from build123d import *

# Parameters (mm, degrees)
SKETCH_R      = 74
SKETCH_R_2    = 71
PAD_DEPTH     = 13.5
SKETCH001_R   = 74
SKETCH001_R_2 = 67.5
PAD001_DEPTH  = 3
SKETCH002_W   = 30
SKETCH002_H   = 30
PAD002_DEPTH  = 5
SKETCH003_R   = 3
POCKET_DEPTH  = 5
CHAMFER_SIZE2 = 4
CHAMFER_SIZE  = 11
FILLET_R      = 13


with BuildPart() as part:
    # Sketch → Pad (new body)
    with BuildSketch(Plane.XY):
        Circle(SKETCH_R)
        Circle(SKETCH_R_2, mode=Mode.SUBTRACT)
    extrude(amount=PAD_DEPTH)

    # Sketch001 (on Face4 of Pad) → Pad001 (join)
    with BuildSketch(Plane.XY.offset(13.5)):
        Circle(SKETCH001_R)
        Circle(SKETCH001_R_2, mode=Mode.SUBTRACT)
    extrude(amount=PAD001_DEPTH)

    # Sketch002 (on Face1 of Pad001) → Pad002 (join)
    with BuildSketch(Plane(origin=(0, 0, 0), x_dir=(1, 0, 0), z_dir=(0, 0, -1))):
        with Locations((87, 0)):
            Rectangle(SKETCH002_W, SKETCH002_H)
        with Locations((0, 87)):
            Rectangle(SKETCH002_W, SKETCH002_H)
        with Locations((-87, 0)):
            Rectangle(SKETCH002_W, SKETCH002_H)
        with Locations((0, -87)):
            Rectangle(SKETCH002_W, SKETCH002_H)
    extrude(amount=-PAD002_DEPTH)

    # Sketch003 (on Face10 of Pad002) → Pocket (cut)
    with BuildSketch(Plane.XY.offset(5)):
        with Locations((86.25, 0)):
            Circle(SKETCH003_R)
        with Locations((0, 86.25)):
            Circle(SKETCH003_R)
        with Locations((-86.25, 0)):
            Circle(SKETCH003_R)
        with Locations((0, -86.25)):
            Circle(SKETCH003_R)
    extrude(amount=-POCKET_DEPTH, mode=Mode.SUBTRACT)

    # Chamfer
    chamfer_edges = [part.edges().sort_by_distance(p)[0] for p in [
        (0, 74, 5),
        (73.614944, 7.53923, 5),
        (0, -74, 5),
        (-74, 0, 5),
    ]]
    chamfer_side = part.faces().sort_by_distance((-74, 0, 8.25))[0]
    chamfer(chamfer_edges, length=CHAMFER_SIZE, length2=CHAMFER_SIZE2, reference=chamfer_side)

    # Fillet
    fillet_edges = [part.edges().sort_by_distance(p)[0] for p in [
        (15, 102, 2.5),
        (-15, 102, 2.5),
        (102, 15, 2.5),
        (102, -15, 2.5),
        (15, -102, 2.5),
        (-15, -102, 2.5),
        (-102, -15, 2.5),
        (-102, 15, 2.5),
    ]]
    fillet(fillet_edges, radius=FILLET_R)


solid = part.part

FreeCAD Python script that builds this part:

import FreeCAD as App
import Part
import Sketcher

V = App.Vector


def edges_at(feature, points):
    """Names of the edges that pass closest to the given points."""
    edges = feature.Shape.Edges
    near = lambda p: min(range(len(edges)), key=lambda i: edges[i].distToShape(Part.Vertex(*p))[0])
    return sorted({f"Edge{near(p) + 1}" for p in points})


def add_polygon(sketch, points):
    """Adds a closed chain of lines whose ends are joined by coincident constraints."""
    first, n = sketch.GeometryCount, len(points)
    for a, b in zip(points, points[1:] + points[:1]):
        sketch.addGeometry(Part.LineSegment(App.Vector(*a, 0), App.Vector(*b, 0)), False)
    for i in range(n):
        sketch.addConstraint(Sketcher.Constraint("Coincident", first + i, 2, first + (i + 1) % n, 1))

doc = App.newDocument("Part")
body = doc.addObject("PartDesign::Body", "Body")

sketch1 = doc.addObject("Sketcher::SketchObject", "Sketch")
body.addObject(sketch1)
sketch1.AttachmentSupport = (doc.XY_Plane, [""])
sketch1.MapMode = "FlatFace"
sketch1.addGeometry(Part.Circle(V(0, 0, 0), V(0, 0, 1), 74), False)
sketch1.addGeometry(Part.Circle(V(0, 0, 0), V(0, 0, 1), 71), False)
sketch1.addConstraint(Sketcher.Constraint("Coincident", 0, 3, -1, 1))
sketch1.addConstraint(Sketcher.Constraint("Coincident", 1, 3, -1, 1))
sketch1.addConstraint(Sketcher.Constraint("Diameter", 0, 148.0))
sketch1.addConstraint(Sketcher.Constraint("Diameter", 1, 142.0))
pad1 = doc.addObject("PartDesign::Pad", "Pad")
body.addObject(pad1)
pad1.Profile = sketch1
pad1.Length = 13.5

sketch2 = doc.addObject("Sketcher::SketchObject", "Sketch001")
body.addObject(sketch2)
sketch2.AttachmentSupport = (doc.XY_Plane, [""])
sketch2.MapMode = "FlatFace"
sketch2.AttachmentOffset = App.Placement(V(0, 0, 13.5), App.Rotation())
sketch2.addGeometry(Part.Circle(V(0, 0, 0), V(0, 0, 1), 74), False)
sketch2.addGeometry(Part.Circle(V(0, 0, 0), V(0, 0, 1), 68), False)
sketch2.addConstraint(Sketcher.Constraint("Coincident", 0, 3, -1, 1))
sketch2.addConstraint(Sketcher.Constraint("Coincident", 1, 3, -1, 1))
sketch2.addConstraint(Sketcher.Constraint("Diameter", 0, 148.0))
sketch2.addConstraint(Sketcher.Constraint("Diameter", 1, 135.0))
pad2 = doc.addObject("PartDesign::Pad", "Pad001")
body.addObject(pad2)
pad2.Profile = sketch2
pad2.Length = 3

sketch3 = doc.addObject("Sketcher::SketchObject", "Sketch002")
body.addObject(sketch3)
sketch3.AttachmentSupport = (doc.XY_Plane, [""])
sketch3.MapMode = "FlatFace"
add_polygon(sketch3, [(72, -15), (72, 15), (102, 15), (102, -15)])
add_polygon(sketch3, [(-15, -102), (-15, -72), (15, -72), (15, -102)])
add_polygon(sketch3, [(-102, -15), (-102, 15), (-72, 15), (-72, -15)])
add_polygon(sketch3, [(-15, 72), (-15, 102), (15, 102), (15, 72)])
sketch3.addConstraint(Sketcher.Constraint("Vertical", 0))
sketch3.addConstraint(Sketcher.Constraint("Horizontal", 1))
sketch3.addConstraint(Sketcher.Constraint("Vertical", 2))
sketch3.addConstraint(Sketcher.Constraint("Horizontal", 3))
sketch3.addConstraint(Sketcher.Constraint("Vertical", 4))
sketch3.addConstraint(Sketcher.Constraint("Horizontal", 5))
sketch3.addConstraint(Sketcher.Constraint("Vertical", 6))
sketch3.addConstraint(Sketcher.Constraint("Horizontal", 7))
sketch3.addConstraint(Sketcher.Constraint("Vertical", 8))
sketch3.addConstraint(Sketcher.Constraint("Horizontal", 9))
sketch3.addConstraint(Sketcher.Constraint("Vertical", 10))
sketch3.addConstraint(Sketcher.Constraint("Horizontal", 11))
sketch3.addConstraint(Sketcher.Constraint("Vertical", 12))
sketch3.addConstraint(Sketcher.Constraint("Horizontal", 13))
sketch3.addConstraint(Sketcher.Constraint("Vertical", 14))
sketch3.addConstraint(Sketcher.Constraint("Horizontal", 15))
sketch3.addConstraint(Sketcher.Constraint("Symmetric", 2, 2, 8, 2, -1, 1))
sketch3.addConstraint(Sketcher.Constraint("Symmetric", 0, 2, 10, 2, -1, 1))
sketch3.addConstraint(Sketcher.Constraint("Symmetric", 6, 2, 12, 2, -1, 1))
sketch3.addConstraint(Sketcher.Constraint("Symmetric", 4, 2, 14, 2, -1, 1))
sketch3.addConstraint(Sketcher.Constraint("Horizontal", 1, 2, 8, 2))
sketch3.addConstraint(Sketcher.Constraint("Vertical", 7, 2, 12, 2))
sketch3.addConstraint(Sketcher.Constraint("Equal", 3, 5))
sketch3.addConstraint(Sketcher.Constraint("Equal", 15, 0))
sketch3.addConstraint(Sketcher.Constraint("Equal", 2, 4))
sketch3.addConstraint(Sketcher.Constraint("DistanceX", 1, 1, 1, 2, 30.0))
sketch3.addConstraint(Sketcher.Constraint("DistanceX", -1, 1, 0, 2, 72.0))
sketch3.addConstraint(Sketcher.Constraint("DistanceY", 4, 2, -1, 1, 72.0))
pad3 = doc.addObject("PartDesign::Pad", "Pad002")
body.addObject(pad3)
pad3.Profile = sketch3
pad3.Length = 5

sketch4 = doc.addObject("Sketcher::SketchObject", "Sketch003")
body.addObject(sketch4)
sketch4.AttachmentSupport = (doc.XY_Plane, [""])
sketch4.MapMode = "FlatFace"
sketch4.AttachmentOffset = App.Placement(V(0, 0, 5), App.Rotation())
sketch4.addGeometry(Part.Circle(V(86.2, 0, 0), V(0, 0, 1), 3), False)
sketch4.addGeometry(Part.Circle(V(0, 86.2, 0), V(0, 0, 1), 3), False)
sketch4.addGeometry(Part.Circle(V(-86.2, 0, 0), V(0, 0, 1), 3), False)
sketch4.addGeometry(Part.Circle(V(0, -86.2, 0), V(0, 0, 1), 3), False)
sketch4.addConstraint(Sketcher.Constraint("Equal", 0, 1))
sketch4.addConstraint(Sketcher.Constraint("Equal", 1, 2))
sketch4.addConstraint(Sketcher.Constraint("Equal", 2, 3))
sketch4.addConstraint(Sketcher.Constraint("Symmetric", 0, 3, 2, 3, -1, 1))
sketch4.addConstraint(Sketcher.Constraint("Symmetric", 1, 3, 3, 3, -1, 1))
sketch4.addConstraint(Sketcher.Constraint("PointOnObject", 0, 3, -1))
sketch4.addConstraint(Sketcher.Constraint("PointOnObject", 1, 3, -2))
sketch4.addConstraint(Sketcher.Constraint("Diameter", 0, 6.0))
sketch4.addConstraint(Sketcher.Constraint("DistanceX", 2, 3, 0, 3, 172.5))
sketch4.addConstraint(Sketcher.Constraint("DistanceY", 3, 3, 1, 3, 172.5))
pocket1 = doc.addObject("PartDesign::Pocket", "Pocket")
body.addObject(pocket1)
pocket1.Profile = sketch4
pocket1.Length = 5
doc.recompute()

chamfer = doc.addObject("PartDesign::Chamfer", "Chamfer")
body.addObject(chamfer)
chamfer.Base = (pocket1, edges_at(pocket1, [
    (0, 74, 5),
    (73.615, 7.539, 5),
    (0, -74, 5),
    (-74, 0, 5),
]))
chamfer.ChamferType = "Two distances"
chamfer.Size = 11
chamfer.Size2 = 4
doc.recompute()

fillet = doc.addObject("PartDesign::Fillet", "Fillet")
body.addObject(fillet)
fillet.Base = (chamfer, edges_at(chamfer, [
    (15, 102, 2.5),
    (-15, 102, 2.5),
    (102, 15, 2.5),
    (102, -15, 2.5),
    (15, -102, 2.5),
    (-15, -102, 2.5),
    (-102, -15, 2.5),
    (-102, 15, 2.5),
]))
fillet.Radius = 13

doc.recompute()
